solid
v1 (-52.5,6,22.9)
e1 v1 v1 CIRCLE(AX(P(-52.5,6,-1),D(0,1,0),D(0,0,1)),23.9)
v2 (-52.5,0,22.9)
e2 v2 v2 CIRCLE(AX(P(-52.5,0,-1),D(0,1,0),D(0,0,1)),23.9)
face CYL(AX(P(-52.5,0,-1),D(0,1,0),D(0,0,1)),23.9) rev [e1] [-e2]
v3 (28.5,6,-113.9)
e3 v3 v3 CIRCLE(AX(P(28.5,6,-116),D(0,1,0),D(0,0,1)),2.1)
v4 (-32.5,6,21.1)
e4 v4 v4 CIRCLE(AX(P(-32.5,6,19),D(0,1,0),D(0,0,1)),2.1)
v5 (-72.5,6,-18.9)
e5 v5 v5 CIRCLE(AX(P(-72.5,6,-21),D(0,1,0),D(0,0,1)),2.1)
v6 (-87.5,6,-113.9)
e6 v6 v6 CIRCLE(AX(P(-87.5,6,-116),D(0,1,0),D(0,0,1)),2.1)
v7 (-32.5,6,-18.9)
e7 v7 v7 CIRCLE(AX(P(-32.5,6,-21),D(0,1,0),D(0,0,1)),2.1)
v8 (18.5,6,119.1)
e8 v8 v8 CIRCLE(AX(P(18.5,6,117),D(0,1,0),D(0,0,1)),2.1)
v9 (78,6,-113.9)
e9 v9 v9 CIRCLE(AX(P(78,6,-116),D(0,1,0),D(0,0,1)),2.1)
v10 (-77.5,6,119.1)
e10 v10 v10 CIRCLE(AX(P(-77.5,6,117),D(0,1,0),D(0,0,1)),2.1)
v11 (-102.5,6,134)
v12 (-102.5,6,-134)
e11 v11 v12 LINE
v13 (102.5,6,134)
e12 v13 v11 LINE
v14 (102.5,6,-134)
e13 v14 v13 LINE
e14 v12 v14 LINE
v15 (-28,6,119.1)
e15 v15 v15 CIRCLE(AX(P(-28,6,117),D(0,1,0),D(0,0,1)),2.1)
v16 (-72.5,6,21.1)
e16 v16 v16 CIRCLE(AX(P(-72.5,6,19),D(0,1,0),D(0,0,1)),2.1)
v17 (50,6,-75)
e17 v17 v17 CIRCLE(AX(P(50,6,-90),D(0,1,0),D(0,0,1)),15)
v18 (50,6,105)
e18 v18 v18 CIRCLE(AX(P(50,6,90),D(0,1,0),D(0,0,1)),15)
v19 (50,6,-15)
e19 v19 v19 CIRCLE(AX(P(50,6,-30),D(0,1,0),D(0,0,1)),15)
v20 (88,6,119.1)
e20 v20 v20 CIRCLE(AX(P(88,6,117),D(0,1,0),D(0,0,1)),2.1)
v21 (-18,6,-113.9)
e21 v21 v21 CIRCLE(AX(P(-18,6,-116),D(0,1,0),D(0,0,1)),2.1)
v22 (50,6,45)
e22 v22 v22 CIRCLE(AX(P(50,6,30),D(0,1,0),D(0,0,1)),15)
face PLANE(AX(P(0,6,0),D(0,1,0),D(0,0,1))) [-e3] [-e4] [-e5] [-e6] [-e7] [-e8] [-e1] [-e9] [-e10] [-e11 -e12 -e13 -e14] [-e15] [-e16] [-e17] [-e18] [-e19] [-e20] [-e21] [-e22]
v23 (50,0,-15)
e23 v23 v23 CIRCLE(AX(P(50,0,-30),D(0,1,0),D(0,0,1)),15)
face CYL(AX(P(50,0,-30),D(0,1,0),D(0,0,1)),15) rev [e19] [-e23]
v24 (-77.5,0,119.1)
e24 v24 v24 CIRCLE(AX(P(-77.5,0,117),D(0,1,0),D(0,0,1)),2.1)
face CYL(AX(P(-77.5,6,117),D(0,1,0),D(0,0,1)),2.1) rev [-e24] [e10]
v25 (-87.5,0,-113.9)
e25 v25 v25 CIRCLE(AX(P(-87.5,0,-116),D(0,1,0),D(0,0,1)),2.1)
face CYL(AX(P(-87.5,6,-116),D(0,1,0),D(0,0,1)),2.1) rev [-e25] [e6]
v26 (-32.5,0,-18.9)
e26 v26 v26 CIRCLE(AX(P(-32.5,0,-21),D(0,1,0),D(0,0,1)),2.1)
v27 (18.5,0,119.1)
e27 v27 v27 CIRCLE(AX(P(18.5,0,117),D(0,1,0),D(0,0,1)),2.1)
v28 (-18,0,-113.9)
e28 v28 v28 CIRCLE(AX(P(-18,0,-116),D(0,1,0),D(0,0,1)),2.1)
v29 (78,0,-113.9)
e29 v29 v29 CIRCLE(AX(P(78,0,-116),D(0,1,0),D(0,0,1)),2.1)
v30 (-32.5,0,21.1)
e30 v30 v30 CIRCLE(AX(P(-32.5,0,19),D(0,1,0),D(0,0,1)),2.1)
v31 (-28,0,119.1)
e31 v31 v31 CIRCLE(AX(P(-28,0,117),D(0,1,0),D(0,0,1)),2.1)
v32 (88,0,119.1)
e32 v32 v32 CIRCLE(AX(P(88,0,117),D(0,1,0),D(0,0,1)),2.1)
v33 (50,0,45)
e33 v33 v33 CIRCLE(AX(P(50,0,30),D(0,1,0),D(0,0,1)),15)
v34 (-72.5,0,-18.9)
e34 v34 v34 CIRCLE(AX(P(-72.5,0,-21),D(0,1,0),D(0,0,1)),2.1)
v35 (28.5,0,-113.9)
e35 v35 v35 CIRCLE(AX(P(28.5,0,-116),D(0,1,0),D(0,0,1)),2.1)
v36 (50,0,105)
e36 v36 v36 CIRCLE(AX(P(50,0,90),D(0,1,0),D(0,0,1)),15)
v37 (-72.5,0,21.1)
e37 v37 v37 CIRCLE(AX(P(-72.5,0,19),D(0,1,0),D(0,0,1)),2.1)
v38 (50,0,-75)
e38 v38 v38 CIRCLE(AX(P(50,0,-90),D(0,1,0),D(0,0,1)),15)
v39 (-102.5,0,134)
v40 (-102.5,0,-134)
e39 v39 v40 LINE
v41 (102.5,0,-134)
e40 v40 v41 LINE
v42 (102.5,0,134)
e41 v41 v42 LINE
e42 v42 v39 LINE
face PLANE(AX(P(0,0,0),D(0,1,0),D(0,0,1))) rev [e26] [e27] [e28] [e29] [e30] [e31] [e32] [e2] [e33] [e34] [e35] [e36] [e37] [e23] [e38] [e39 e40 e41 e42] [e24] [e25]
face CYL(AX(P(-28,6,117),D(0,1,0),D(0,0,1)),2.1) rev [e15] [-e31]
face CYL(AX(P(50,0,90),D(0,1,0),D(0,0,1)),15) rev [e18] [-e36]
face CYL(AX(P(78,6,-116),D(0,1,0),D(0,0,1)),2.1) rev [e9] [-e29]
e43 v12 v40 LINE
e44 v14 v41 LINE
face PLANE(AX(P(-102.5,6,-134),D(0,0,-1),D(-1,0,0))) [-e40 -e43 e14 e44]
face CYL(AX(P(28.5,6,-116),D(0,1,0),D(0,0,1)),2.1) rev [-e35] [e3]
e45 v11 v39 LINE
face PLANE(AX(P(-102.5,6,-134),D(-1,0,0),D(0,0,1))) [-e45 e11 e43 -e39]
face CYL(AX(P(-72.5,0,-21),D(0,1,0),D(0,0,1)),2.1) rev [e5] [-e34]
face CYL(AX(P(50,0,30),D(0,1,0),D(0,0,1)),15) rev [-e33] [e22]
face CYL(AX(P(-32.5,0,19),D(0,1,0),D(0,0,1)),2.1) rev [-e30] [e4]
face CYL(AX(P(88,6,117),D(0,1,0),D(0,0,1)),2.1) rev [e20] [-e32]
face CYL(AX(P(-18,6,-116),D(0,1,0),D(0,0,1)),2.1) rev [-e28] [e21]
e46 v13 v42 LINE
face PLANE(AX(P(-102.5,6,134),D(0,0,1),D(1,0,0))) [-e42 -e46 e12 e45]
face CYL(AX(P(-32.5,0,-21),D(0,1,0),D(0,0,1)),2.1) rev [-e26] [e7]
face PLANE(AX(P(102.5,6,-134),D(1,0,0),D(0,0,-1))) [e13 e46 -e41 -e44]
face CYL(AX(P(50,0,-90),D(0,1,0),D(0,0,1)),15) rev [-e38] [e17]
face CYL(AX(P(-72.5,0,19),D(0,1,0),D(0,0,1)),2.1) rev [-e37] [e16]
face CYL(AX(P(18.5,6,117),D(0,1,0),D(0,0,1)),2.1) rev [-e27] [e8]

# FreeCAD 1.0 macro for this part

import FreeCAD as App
import Part
import Sketcher
Q = App.Units.Quantity

doc = App.newDocument("Part")
body = doc.addObject("PartDesign::Body", "Body")

# Sketch on XZ plane
sketch1 = body.newObject("Sketcher::SketchObject", "Sketch")
sketch1.AttachmentSupport = (doc.getObject("XZ_Plane"), [""])
sketch1.MapMode = "FlatFace"
sketch1.addGeometry(Part.LineSegment(App.Vector(-102, 134, 0), App.Vector(-102, -134, 0)), False)
sketch1.addGeometry(Part.LineSegment(App.Vector(-102, -134, 0), App.Vector(102, -134, 0)), False)
sketch1.addGeometry(Part.LineSegment(App.Vector(102, -134, 0), App.Vector(102, 134, 0)), False)
sketch1.addGeometry(Part.LineSegment(App.Vector(102, 134, 0), App.Vector(-102, 134, 0)), False)
sketch1.addConstraint(Sketcher.Constraint("Coincident", 0, 2, 1, 1))
sketch1.addConstraint(Sketcher.Constraint("Coincident", 1, 2, 2, 1))
sketch1.addConstraint(Sketcher.Constraint("Coincident", 2, 2, 3, 1))
sketch1.addConstraint(Sketcher.Constraint("Coincident", 3, 2, 0, 1))
sketch1.addConstraint(Sketcher.Constraint("Vertical", 0))
sketch1.addConstraint(Sketcher.Constraint("Horizontal", 1))
sketch1.addConstraint(Sketcher.Constraint("Vertical", 2))
sketch1.addConstraint(Sketcher.Constraint("Horizontal", 3))
sketch1.addConstraint(Sketcher.Constraint("Symmetric", 0, 2, 2, 2, -1, 1))
sketch1.addConstraint(Sketcher.Constraint("DistanceX", 1, 1, 1, 2, Q("205 mm")))
sketch1.addConstraint(Sketcher.Constraint("DistanceY", 0, 2, 0, 1, Q("268 mm")))
pad1 = body.newObject("PartDesign::Pad", "Pad")
pad1.Profile = sketch1
pad1.Length = 6
pad1.Reversed = True

# Sketch on XZ plane
sketch2 = body.newObject("Sketcher::SketchObject", "Sketch001")
sketch2.AttachmentSupport = (doc.getObject("XZ_Plane"), [""])
sketch2.MapMode = "FlatFace"
sketch2.AttachmentOffset = App.Placement(App.Vector(0, 0, -6), App.Rotation())
sketch2.addGeometry(Part.Circle(App.Vector(-52.5, -1, 0), App.Vector(0, 0, 1), 23.9), False)
sketch2.addGeometry(Part.Circle(App.Vector(-72.5, -21, 0), App.Vector(0, 0, 1), 2.1), False)
sketch2.addGeometry(Part.Circle(App.Vector(-32.5, -21, 0), App.Vector(0, 0, 1), 2.1), False)
sketch2.addGeometry(Part.Circle(App.Vector(-32.5, 19, 0), App.Vector(0, 0, 1), 2.1), False)
sketch2.addGeometry(Part.Circle(App.Vector(-72.5, 19, 0), App.Vector(0, 0, 1), 2.1), False)
sketch2.addConstraint(Sketcher.Constraint("Equal", 1, 2))
sketch2.addConstraint(Sketcher.Constraint("Equal", 2, 3))
sketch2.addConstraint(Sketcher.Constraint("Equal", 3, 4))
sketch2.addConstraint(Sketcher.Constraint("Horizontal", 1, 3, 2, 3))
sketch2.addConstraint(Sketcher.Constraint("Horizontal", 3, 3, 4, 3))
sketch2.addConstraint(Sketcher.Constraint("Vertical", 2, 3, 3, 3))
sketch2.addConstraint(Sketcher.Constraint("Vertical", 1, 3, 4, 3))
sketch2.addConstraint(Sketcher.Constraint("Diameter", 0, Q("47.8 mm")))
sketch2.addConstraint(Sketcher.Constraint("Diameter", 1, Q("4.2 mm")))
sketch2.addConstraint(Sketcher.Constraint("DistanceY", 0, 3, -1, 1, Q("1 mm")))
sketch2.addConstraint(Sketcher.Constraint("DistanceY", 1, 3, -1, 1, Q("21 mm")))
sketch2.addConstraint(Sketcher.Constraint("DistanceY", -1, 1, 3, 3, Q("19 mm")))
sketch2.addConstraint(Sketcher.Constraint("DistanceX", 1, 3, 0, 3, Q("20 mm")))
sketch2.addConstraint(Sketcher.Constraint("DistanceX", 0, 3, 2, 3, Q("20 mm")))
sketch2.addConstraint(Sketcher.Constraint("DistanceX", 0, 3, -1, 1, Q("52.5 mm")))
pocket1 = body.newObject("PartDesign::Pocket", "Pocket")
pocket1.Profile = sketch2
pocket1.Type = "ThroughAll"
pocket1.Reversed = True

# Sketch on XZ plane
sketch3 = body.newObject("Sketcher::SketchObject", "Sketch002")
sketch3.AttachmentSupport = (doc.getObject("XZ_Plane"), [""])
sketch3.MapMode = "FlatFace"
sketch3.AttachmentOffset = App.Placement(App.Vector(0, 0, -6), App.Rotation())
sketch3.addGeometry(Part.Circle(App.Vector(50, -30, 0), App.Vector(0, 0, 1), 15), False)
sketch3.addGeometry(Part.Circle(App.Vector(50, 30, 0), App.Vector(0, 0, 1), 15), False)
sketch3.addGeometry(Part.Circle(App.Vector(50, -90, 0), App.Vector(0, 0, 1), 15), False)
sketch3.addGeometry(Part.Circle(App.Vector(50, 90, 0), App.Vector(0, 0, 1), 15), False)
sketch3.addConstraint(Sketcher.Constraint("Equal", 0, 1))
sketch3.addConstraint(Sketcher.Constraint("Equal", 1, 2))
sketch3.addConstraint(Sketcher.Constraint("Equal", 2, 3))
sketch3.addConstraint(Sketcher.Constraint("Symmetric", 0, 3, 1, 3, -1))
sketch3.addConstraint(Sketcher.Constraint("Symmetric", 2, 3, 3, 3, -1))
sketch3.addConstraint(Sketcher.Constraint("Vertical", 1, 3, 2, 3))
sketch3.addConstraint(Sketcher.Constraint("Diameter", 0, Q("30 mm")))
sketch3.addConstraint(Sketcher.Constraint("DistanceX", -1, 1, 0, 3, Q("50 mm")))
sketch3.addConstraint(Sketcher.Constraint("DistanceY", 0, 3, -1, 1, Q("30 mm")))
sketch3.addConstraint(Sketcher.Constraint("DistanceY", 2, 3, -1, 1, Q("90 mm")))
pocket2 = body.newObject("PartDesign::Pocket", "Pocket001")
pocket2.Profile = sketch3
pocket2.Type = "ThroughAll"
pocket2.Reversed = True

# Sketch on XZ plane
sketch4 = body.newObject("Sketcher::SketchObject", "Sketch003")
sketch4.AttachmentSupport = (doc.getObject("XZ_Plane"), [""])
sketch4.MapMode = "FlatFace"
sketch4.AttachmentOffset = App.Placement(App.Vector(0, 0, -6), App.Rotation())
sketch4.addGeometry(Part.Circle(App.Vector(-87.5, -116, 0), App.Vector(0, 0, 1), 2.1), False)
sketch4.addGeometry(Part.Circle(App.Vector(-18, -116, 0), App.Vector(0, 0, 1), 2.1), False)
sketch4.addGeometry(Part.Circle(App.Vector(28.5, -116, 0), App.Vector(0, 0, 1), 2.1), False)
sketch4.addGeometry(Part.Circle(App.Vector(78, -116, 0), App.Vector(0, 0, 1), 2.1), False)
sketch4.addGeometry(Part.Circle(App.Vector(-77.5, 117, 0), App.Vector(0, 0, 1), 2.1), False)
sketch4.addGeometry(Part.Circle(App.Vector(-28, 117, 0), App.Vector(0, 0, 1), 2.1), False)
sketch4.addGeometry(Part.Circle(App.Vector(18.5, 117, 0), App.Vector(0, 0, 1), 2.1), False)
sketch4.addGeometry(Part.Circle(App.Vector(88, 117, 0), App.Vector(0, 0, 1), 2.1), False)
sketch4.addConstraint(Sketcher.Constraint("Equal", 0, 1))
sketch4.addConstraint(Sketcher.Constraint("Equal", 1, 2))
sketch4.addConstraint(Sketcher.Constraint("Equal", 2, 3))
sketch4.addConstraint(Sketcher.Constraint("Equal", 3, 4))
sketch4.addConstraint(Sketcher.Constraint("Equal", 4, 5))
sketch4.addConstraint(Sketcher.Constraint("Equal", 5, 6))
sketch4.addConstraint(Sketcher.Constraint("Equal", 6, 7))
sketch4.addConstraint(Sketcher.Constraint("Horizontal", 0, 3, 1, 3))
sketch4.addConstraint(Sketcher.Constraint("Horizontal", 1, 3, 2, 3))
sketch4.addConstraint(Sketcher.Constraint("Horizontal", 2, 3, 3, 3))
sketch4.addConstraint(Sketcher.Constraint("Horizontal", 4, 3, 5, 3))
sketch4.addConstraint(Sketcher.Constraint("Horizontal", 5, 3, 6, 3))
sketch4.addConstraint(Sketcher.Constraint("Horizontal", 6, 3, 7, 3))
sketch4.addConstraint(Sketcher.Constraint("Diameter", 0, Q("4.2 mm")))
sketch4.addConstraint(Sketcher.Constraint("DistanceY", 0, 3, -1, 1, Q("116 mm")))
sketch4.addConstraint(Sketcher.Constraint("DistanceX", 1, 3, -1, 1, Q("18 mm")))
sketch4.addConstraint(Sketcher.Constraint("DistanceX", -1, 1, 3, 3, Q("78 mm")))
sketch4.addConstraint(Sketcher.Constraint("DistanceY", -1, 1, 4, 3, Q("117 mm")))
sketch4.addConstraint(Sketcher.Constraint("DistanceX", 5, 3, -1, 1, Q("28 mm")))
sketch4.addConstraint(Sketcher.Constraint("DistanceX", -1, 1, 7, 3, Q("88 mm")))
sketch4.addConstraint(Sketcher.Constraint("DistanceX", 0, 3, 2, 3, Q("116 mm")))
sketch4.addConstraint(Sketcher.Constraint("DistanceX", 0, 3, 4, 3, Q("10 mm")))
sketch4.addConstraint(Sketcher.Constraint("DistanceX", 4, 3, 6, 3, Q("96 mm")))
sketch4.addConstraint(Sketcher.Constraint("DistanceX", 0, 3, -1, 1, Q("87.5 mm")))
doc.recompute()
hole = body.newObject("PartDesign::Hole", "Hole")
hole.Profile = sketch4
hole.ThreadType = "None"
hole.Diameter = 4.2
hole.DepthType = "ThroughAll"
hole.Reversed = True

doc.recompute()
